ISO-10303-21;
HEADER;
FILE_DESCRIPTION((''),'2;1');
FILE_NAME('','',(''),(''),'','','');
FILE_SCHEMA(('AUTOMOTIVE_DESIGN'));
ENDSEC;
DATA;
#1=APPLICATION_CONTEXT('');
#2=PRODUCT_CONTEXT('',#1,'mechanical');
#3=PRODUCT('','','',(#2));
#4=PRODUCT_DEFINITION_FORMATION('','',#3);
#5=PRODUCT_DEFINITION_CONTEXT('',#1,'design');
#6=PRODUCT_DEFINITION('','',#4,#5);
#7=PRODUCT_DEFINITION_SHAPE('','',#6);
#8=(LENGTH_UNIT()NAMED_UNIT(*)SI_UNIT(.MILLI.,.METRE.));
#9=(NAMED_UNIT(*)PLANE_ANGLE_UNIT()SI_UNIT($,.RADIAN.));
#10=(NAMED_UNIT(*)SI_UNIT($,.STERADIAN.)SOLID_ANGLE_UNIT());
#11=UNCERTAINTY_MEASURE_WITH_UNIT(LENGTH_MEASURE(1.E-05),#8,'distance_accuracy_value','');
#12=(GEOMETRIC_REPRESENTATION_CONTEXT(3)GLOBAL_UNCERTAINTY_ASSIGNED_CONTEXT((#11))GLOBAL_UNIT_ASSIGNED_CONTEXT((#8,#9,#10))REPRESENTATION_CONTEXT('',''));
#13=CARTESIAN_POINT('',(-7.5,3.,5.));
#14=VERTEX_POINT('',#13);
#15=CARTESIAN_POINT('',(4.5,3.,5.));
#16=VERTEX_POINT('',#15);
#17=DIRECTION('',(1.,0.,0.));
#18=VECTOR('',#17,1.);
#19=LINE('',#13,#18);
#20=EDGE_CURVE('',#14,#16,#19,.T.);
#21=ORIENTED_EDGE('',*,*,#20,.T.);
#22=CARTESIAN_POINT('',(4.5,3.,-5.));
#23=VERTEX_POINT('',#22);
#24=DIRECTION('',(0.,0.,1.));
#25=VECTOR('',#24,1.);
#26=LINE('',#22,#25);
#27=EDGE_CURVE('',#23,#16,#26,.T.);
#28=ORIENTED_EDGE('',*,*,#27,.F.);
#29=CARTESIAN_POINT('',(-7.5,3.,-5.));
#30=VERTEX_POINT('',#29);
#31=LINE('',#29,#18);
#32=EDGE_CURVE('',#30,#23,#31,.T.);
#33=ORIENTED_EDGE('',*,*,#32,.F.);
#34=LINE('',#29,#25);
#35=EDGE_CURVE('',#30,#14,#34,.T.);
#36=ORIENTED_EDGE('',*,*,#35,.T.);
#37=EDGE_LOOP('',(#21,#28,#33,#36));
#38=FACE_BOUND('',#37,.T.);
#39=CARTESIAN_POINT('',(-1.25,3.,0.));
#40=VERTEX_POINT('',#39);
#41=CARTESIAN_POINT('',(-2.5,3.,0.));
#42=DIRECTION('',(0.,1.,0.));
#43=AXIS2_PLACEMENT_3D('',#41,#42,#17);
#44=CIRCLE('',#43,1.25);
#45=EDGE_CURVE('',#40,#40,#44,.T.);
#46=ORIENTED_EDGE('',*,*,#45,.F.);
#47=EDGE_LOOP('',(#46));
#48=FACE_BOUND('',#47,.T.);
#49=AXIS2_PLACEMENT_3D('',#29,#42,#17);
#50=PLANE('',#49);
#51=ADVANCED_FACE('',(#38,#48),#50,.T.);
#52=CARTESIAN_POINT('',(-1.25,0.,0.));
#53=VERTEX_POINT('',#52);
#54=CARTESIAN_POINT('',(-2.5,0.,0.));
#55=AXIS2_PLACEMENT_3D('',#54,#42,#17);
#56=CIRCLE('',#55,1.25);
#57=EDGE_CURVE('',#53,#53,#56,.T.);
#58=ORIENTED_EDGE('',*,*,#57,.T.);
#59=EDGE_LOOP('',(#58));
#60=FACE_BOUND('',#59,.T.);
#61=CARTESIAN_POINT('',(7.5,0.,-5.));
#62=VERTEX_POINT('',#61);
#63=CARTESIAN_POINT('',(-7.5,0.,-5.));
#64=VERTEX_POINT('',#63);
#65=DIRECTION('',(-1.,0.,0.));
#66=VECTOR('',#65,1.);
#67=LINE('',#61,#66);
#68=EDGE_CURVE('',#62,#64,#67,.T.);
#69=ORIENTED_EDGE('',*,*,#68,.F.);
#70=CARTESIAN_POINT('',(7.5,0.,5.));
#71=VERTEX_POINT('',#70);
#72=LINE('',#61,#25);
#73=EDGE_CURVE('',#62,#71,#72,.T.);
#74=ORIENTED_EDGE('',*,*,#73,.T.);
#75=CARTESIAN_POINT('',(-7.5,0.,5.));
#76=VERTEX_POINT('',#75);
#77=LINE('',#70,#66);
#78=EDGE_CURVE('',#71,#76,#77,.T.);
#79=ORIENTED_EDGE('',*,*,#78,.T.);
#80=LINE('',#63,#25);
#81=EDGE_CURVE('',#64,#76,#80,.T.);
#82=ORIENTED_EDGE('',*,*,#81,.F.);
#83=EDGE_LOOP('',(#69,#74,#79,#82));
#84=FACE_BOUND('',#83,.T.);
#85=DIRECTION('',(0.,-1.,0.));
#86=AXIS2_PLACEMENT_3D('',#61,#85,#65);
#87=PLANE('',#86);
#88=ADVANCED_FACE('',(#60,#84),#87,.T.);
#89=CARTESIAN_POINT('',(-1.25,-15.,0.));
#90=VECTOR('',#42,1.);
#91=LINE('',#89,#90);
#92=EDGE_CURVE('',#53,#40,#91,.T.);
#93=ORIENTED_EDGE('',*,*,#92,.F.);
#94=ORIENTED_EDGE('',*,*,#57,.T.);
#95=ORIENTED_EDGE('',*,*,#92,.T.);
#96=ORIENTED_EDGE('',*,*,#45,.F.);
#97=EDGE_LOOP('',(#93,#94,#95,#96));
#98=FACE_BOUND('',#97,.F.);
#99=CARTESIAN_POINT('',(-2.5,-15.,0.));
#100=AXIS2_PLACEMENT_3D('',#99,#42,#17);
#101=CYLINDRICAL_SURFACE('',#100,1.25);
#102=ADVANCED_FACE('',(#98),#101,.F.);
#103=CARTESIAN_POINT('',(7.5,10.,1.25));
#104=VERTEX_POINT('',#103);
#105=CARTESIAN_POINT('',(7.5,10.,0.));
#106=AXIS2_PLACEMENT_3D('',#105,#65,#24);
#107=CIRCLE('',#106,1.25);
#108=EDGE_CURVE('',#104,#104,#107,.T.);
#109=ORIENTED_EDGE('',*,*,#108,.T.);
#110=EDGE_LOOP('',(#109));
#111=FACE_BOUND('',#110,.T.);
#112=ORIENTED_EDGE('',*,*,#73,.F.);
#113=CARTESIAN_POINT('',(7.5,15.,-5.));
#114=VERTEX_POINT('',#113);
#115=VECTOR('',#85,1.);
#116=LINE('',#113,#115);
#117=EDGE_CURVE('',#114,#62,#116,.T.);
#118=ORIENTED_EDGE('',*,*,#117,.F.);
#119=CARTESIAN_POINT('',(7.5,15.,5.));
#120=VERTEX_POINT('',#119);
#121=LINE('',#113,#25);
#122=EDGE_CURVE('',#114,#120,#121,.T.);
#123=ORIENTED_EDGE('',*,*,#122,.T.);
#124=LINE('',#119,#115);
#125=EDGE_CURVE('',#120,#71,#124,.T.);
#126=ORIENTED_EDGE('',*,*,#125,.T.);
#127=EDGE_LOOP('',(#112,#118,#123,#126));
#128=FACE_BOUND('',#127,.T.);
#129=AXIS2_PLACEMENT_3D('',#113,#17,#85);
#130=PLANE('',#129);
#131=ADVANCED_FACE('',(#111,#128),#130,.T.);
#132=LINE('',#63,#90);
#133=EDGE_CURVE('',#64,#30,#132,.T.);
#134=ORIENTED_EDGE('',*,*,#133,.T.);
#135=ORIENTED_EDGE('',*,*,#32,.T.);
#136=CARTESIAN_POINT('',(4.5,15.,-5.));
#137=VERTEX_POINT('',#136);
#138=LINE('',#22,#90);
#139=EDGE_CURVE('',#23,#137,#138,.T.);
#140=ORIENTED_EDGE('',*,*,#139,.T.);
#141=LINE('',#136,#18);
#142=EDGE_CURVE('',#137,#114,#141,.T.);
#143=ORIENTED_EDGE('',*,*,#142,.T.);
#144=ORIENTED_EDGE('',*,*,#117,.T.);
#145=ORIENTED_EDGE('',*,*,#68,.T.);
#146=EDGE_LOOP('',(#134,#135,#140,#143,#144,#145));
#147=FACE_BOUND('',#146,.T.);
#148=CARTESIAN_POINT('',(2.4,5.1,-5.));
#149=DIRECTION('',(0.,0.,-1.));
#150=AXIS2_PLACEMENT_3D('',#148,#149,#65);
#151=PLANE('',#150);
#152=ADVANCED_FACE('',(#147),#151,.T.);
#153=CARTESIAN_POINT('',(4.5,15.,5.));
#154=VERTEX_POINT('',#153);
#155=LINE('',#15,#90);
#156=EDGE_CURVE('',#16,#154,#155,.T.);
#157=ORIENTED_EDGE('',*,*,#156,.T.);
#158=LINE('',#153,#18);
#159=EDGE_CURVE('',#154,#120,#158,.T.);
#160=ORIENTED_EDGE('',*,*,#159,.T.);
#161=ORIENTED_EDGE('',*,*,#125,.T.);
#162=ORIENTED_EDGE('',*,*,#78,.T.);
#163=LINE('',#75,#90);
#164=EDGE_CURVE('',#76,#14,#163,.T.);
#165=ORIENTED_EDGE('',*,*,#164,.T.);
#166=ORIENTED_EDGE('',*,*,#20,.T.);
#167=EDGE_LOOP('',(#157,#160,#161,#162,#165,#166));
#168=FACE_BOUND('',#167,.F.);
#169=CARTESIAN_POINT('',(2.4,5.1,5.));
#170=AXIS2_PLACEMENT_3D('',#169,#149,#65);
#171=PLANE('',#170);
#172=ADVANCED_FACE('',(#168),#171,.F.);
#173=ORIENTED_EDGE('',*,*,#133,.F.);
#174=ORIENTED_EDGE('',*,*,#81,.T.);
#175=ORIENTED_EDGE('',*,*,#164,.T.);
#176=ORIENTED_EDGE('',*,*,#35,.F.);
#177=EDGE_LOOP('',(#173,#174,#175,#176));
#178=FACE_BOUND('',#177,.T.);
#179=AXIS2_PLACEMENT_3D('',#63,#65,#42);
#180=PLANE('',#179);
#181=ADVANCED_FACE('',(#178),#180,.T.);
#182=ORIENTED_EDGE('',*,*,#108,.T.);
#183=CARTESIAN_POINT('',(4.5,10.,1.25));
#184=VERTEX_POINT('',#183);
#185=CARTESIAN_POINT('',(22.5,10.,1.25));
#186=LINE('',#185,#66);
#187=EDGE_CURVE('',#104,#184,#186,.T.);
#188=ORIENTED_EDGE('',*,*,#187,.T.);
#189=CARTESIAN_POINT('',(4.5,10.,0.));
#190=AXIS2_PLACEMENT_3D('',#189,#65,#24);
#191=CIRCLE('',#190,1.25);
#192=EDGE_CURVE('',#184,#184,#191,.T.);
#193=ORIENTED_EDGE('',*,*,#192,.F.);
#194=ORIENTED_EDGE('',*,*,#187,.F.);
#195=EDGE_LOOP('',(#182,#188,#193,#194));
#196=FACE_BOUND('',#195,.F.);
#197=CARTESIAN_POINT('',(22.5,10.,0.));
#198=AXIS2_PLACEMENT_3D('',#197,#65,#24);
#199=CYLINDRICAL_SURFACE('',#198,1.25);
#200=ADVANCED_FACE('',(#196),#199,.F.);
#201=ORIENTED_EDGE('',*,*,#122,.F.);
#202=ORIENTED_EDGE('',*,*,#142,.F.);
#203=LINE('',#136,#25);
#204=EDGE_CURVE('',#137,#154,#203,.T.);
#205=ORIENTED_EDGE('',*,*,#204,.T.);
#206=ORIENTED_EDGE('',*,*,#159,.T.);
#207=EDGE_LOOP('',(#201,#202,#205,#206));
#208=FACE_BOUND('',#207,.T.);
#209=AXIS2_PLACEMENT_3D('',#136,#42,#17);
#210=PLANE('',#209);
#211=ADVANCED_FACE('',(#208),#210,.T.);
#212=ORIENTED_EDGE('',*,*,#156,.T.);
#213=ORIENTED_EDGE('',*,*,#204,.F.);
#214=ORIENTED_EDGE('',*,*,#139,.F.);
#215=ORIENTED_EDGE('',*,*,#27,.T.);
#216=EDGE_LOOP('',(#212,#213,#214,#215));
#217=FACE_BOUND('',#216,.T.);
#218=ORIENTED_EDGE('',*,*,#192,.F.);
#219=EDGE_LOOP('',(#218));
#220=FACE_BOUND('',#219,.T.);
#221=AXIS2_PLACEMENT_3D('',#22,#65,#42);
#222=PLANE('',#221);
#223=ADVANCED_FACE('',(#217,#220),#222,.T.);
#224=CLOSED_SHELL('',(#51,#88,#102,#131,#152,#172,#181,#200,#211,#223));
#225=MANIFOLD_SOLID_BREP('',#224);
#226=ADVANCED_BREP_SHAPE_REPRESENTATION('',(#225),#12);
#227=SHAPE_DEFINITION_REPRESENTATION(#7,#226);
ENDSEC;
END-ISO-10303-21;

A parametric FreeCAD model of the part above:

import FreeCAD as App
import Part
import Sketcher

doc = App.newDocument("Part")
params = doc.addObject("Spreadsheet::Sheet", "Params")
for row, (alias, value) in enumerate([
    ("sketch1_width", "15 mm"),
    ("sketch1_width2", "12 mm"),
    ("pad1_length", "10 mm"),
    ("sketch2_diameter", "2.5 mm"),
    ("hole_diameter", "2.5 mm"),
    ("hole_depth", "15 mm"),
    ("sketch3_diameter", "2.5 mm"),
    ("hole2_diameter", "2.5 mm"),
    ("hole2_depth", "15 mm"),
], start=1):
    params.set(f"A{row}", alias)
    params.set(f"B{row}", "=" + value)
    params.setAlias(f"B{row}", alias)

body = doc.addObject("PartDesign::Body", "Body")

# Sketch on XY plane
sketch1 = doc.addObject("Sketcher::SketchObject", "Sketch")
body.addObject(sketch1)
sketch1.AttachmentSupport = (doc.XY_Plane, [""])
sketch1.MapMode = "FlatFace"
sketch1.AttachmentOffset = App.Placement(App.Vector(0, 0, -5), App.Rotation())
sketch1.addGeometry([
    Part.LineSegment(App.Vector(7.5, 0, 0), App.Vector(-7.5, 0, 0)),  # 0
    Part.LineSegment(App.Vector(-7.5, 0, 0), App.Vector(-7.5, 3, 0)),  # 1
    Part.LineSegment(App.Vector(-7.5, 3, 0), App.Vector(4.5, 3, 0)),  # 2
    Part.LineSegment(App.Vector(4.5, 3, 0), App.Vector(4.5, 15, 0)),  # 3
    Part.LineSegment(App.Vector(4.5, 15, 0), App.Vector(7.5, 15, 0)),  # 4
    Part.LineSegment(App.Vector(7.5, 15, 0), App.Vector(7.5, 0, 0)),  # 5
], False)
sketch1.addConstraint([
    Sketcher.Constraint("Coincident", 0, 2, 1, 1),
    Sketcher.Constraint("Coincident", 1, 2, 2, 1),
    Sketcher.Constraint("Coincident", 2, 2, 3, 1),
    Sketcher.Constraint("Coincident", 3, 2, 4, 1),
    Sketcher.Constraint("Coincident", 4, 2, 5, 1),
    Sketcher.Constraint("Coincident", 5, 2, 0, 1),
    Sketcher.Constraint("Horizontal", 0),
    Sketcher.Constraint("Vertical", 1),
    Sketcher.Constraint("Horizontal", 2),
    Sketcher.Constraint("Vertical", 3),
    Sketcher.Constraint("Horizontal", 4),
    Sketcher.Constraint("Vertical", 5),
    Sketcher.Constraint("Symmetric", 0, 2, 5, 2, -1, 1),
    Sketcher.Constraint("Equal", 4, 1),
    Sketcher.Constraint("Equal", 2, 3),
    Sketcher.Constraint("DistanceX", 0, 2, 0, 1, 15.0),
    Sketcher.Constraint("DistanceX", 2, 1, 2, 2, 12.0),
])
sketch1.setExpression("Constraints[15]", "Params.sketch1_width")
sketch1.setExpression("Constraints[16]", "Params.sketch1_width2")
pad1 = doc.addObject("PartDesign::Pad", "Pad")
body.addObject(pad1)
pad1.Profile = sketch1
pad1.setExpression("Length", "Params.pad1_length")

# Sketch on YZ plane
sketch2 = doc.addObject("Sketcher::SketchObject", "Sketch001")
body.addObject(sketch2)
sketch2.AttachmentSupport = (doc.YZ_Plane, [""])
sketch2.MapMode = "FlatFace"
sketch2.AttachmentOffset = App.Placement(App.Vector(0, 0, 7.5), App.Rotation())
sketch2.addGeometry(Part.Circle(App.Vector(10, 0, 0), App.Vector(0, 0, 1), 1.2), False)
sketch2.addConstraint([
    Sketcher.Constraint("PointOnObject", 0, 3, -1),
    Sketcher.Constraint("Diameter", 0, 2.5),
    Sketcher.Constraint("DistanceX", -1, 1, 0, 3, 10.0),
])
sketch2.setExpression("Constraints[1]", "Params.sketch2_diameter")
doc.recompute()
hole = doc.addObject("PartDesign::Hole", "Hole")
body.addObject(hole)
hole.Profile = sketch2
hole.ThreadType = "None"
hole.setExpression("Diameter", "Params.hole_diameter")
hole.DepthType = "Dimension"
hole.setExpression("Depth", "Params.hole_depth")
hole.DrillPoint = "Flat"

# Sketch on XZ plane
sketch3 = doc.addObject("Sketcher::SketchObject", "Sketch002")
body.addObject(sketch3)
sketch3.AttachmentSupport = (doc.XZ_Plane, [""])
sketch3.MapMode = "FlatFace"
sketch3.addGeometry(Part.Circle(App.Vector(-2.5, 0, 0), App.Vector(0, 0, 1), 1.2), False)
sketch3.addConstraint([
    Sketcher.Constraint("PointOnObject", 0, 3, -1),
    Sketcher.Constraint("Diameter", 0, 2.5),
    Sketcher.Constraint("DistanceX", 0, 3, -1, 1, 2.5),
])
sketch3.setExpression("Constraints[1]", "Params.sketch3_diameter")
doc.recompute()
hole2 = doc.addObject("PartDesign::Hole", "Hole001")
body.addObject(hole2)
hole2.Profile = sketch3
hole2.ThreadType = "None"
hole2.setExpression("Diameter", "Params.hole2_diameter")
hole2.DepthType = "Dimension"
hole2.setExpression("Depth", "Params.hole2_depth")
hole2.DrillPoint = "Flat"

doc.recompute()
